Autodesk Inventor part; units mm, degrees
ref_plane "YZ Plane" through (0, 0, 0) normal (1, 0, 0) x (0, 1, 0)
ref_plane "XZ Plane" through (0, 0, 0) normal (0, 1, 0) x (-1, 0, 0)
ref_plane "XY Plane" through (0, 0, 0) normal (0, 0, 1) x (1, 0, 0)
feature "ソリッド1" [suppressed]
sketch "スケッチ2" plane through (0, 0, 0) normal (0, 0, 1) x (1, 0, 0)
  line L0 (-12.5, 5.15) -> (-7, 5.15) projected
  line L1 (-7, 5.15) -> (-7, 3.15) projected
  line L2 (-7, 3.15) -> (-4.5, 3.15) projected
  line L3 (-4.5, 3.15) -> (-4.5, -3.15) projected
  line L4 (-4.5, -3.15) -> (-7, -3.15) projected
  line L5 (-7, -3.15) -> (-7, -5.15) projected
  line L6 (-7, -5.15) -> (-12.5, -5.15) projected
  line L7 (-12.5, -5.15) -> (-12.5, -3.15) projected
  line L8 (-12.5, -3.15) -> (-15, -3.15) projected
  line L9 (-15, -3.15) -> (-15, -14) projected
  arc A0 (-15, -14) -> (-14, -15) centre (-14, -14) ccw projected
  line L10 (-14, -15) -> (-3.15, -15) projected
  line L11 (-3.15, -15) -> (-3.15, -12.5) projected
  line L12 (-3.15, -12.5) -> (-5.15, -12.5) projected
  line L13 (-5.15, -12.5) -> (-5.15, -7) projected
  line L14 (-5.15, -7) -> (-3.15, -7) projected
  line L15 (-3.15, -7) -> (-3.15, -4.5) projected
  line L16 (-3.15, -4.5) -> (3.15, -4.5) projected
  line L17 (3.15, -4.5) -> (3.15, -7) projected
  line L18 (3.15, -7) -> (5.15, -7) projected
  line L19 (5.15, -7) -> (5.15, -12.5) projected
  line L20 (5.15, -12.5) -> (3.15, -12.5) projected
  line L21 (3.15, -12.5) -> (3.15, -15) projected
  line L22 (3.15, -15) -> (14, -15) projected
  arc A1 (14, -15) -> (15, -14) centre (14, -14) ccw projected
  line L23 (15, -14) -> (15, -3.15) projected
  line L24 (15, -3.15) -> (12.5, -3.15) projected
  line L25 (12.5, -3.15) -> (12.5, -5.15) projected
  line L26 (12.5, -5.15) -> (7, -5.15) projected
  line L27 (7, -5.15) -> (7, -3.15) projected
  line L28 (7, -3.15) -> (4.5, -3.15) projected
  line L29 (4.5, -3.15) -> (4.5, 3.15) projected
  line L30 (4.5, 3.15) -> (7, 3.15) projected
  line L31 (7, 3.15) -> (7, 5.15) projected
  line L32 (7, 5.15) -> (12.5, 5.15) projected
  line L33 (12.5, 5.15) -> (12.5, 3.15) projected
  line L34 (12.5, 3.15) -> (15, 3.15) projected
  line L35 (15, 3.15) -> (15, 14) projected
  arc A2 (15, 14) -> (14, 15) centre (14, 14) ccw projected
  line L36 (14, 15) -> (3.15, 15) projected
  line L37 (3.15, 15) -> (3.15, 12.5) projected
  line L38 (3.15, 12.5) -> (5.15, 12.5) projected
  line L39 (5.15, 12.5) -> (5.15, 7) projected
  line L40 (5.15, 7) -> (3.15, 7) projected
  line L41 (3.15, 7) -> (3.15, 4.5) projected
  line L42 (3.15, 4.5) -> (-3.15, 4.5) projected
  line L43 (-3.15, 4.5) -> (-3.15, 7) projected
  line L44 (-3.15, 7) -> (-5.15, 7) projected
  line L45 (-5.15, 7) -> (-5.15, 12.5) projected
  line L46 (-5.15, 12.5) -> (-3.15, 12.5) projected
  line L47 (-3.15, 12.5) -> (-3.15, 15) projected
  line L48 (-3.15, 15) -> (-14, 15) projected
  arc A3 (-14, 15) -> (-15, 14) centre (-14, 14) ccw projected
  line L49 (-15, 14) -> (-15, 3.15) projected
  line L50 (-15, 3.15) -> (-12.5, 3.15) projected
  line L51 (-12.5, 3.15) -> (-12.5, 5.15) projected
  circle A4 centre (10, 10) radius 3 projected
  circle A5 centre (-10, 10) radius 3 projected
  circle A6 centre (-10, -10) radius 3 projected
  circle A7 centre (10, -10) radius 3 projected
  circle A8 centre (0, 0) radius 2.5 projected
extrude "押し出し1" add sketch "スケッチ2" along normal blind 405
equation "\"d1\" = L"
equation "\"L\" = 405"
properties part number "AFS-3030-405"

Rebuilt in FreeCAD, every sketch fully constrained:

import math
import FreeCAD as App
import Part
import Sketcher
Q = App.Units.Quantity

doc = App.newDocument("Part")
body = doc.addObject("PartDesign::Body", "Body")

sketch1 = body.newObject("Sketcher::SketchObject", "Sketch")
sketch1.AttachmentSupport = (doc.getObject("XY_Plane"), [""])
sketch1.MapMode = "FlatFace"
sketch1.addGeometry([
    Part.LineSegment(App.Vector(-12.5, 3.15, 0), App.Vector(-12.5, 5.15, 0)),
    Part.LineSegment(App.Vector(-12.5, 5.15, 0), App.Vector(-7, 5.15, 0)),
    Part.LineSegment(App.Vector(-7, 5.15, 0), App.Vector(-7, 3.15, 0)),
    Part.LineSegment(App.Vector(-7, 3.15, 0), App.Vector(-4.5, 3.15, 0)),
    Part.LineSegment(App.Vector(-4.5, 3.15, 0), App.Vector(-4.5, -3.15, 0)),
    Part.LineSegment(App.Vector(-4.5, -3.15, 0), App.Vector(-7, -3.15, 0)),
    Part.LineSegment(App.Vector(-7, -3.15, 0), App.Vector(-7, -5.15, 0)),
    Part.LineSegment(App.Vector(-7, -5.15, 0), App.Vector(-12.5, -5.15, 0)),
    Part.LineSegment(App.Vector(-12.5, -5.15, 0), App.Vector(-12.5, -3.15, 0)),
    Part.LineSegment(App.Vector(-12.5, -3.15, 0), App.Vector(-15, -3.15, 0)),
    Part.LineSegment(App.Vector(-15, -3.15, 0), App.Vector(-15, -14, 0)),
    Part.ArcOfCircle(Part.Circle(App.Vector(-14, -14, 0), App.Vector(0, 0, 1), 1), math.radians(180), math.radians(270)),
    Part.LineSegment(App.Vector(-14, -15, 0), App.Vector(-3.15, -15, 0)),
    Part.LineSegment(App.Vector(-3.15, -15, 0), App.Vector(-3.15, -12.5, 0)),
    Part.LineSegment(App.Vector(-3.15, -12.5, 0), App.Vector(-5.15, -12.5, 0)),
    Part.LineSegment(App.Vector(-5.15, -12.5, 0), App.Vector(-5.15, -7, 0)),
    Part.LineSegment(App.Vector(-5.15, -7, 0), App.Vector(-3.15, -7, 0)),
    Part.LineSegment(App.Vector(-3.15, -7, 0), App.Vector(-3.15, -4.5, 0)),
    Part.LineSegment(App.Vector(-3.15, -4.5, 0), App.Vector(3.15, -4.5, 0)),
    Part.LineSegment(App.Vector(3.15, -4.5, 0), App.Vector(3.15, -7, 0)),
    Part.LineSegment(App.Vector(3.15, -7, 0), App.Vector(5.15, -7, 0)),
    Part.LineSegment(App.Vector(5.15, -7, 0), App.Vector(5.15, -12.5, 0)),
    Part.LineSegment(App.Vector(5.15, -12.5, 0), App.Vector(3.15, -12.5, 0)),
    Part.LineSegment(App.Vector(3.15, -12.5, 0), App.Vector(3.15, -15, 0)),
    Part.LineSegment(App.Vector(3.15, -15, 0), App.Vector(14, -15, 0)),
    Part.ArcOfCircle(Part.Circle(App.Vector(14, -14, 0), App.Vector(0, 0, 1), 1), math.radians(-90), math.radians(0)),
    Part.LineSegment(App.Vector(15, -14, 0), App.Vector(15, -3.15, 0)),
    Part.LineSegment(App.Vector(15, -3.15, 0), App.Vector(12.5, -3.15, 0)),
    Part.LineSegment(App.Vector(12.5, -3.15, 0), App.Vector(12.5, -5.15, 0)),
    Part.LineSegment(App.Vector(12.5, -5.15, 0), App.Vector(7, -5.15, 0)),
    Part.LineSegment(App.Vector(7, -5.15, 0), App.Vector(7, -3.15, 0)),
    Part.LineSegment(App.Vector(7, -3.15, 0), App.Vector(4.5, -3.15, 0)),
    Part.LineSegment(App.Vector(4.5, -3.15, 0), App.Vector(4.5, 3.15, 0)),
    Part.LineSegment(App.Vector(4.5, 3.15, 0), App.Vector(7, 3.15, 0)),
    Part.LineSegment(App.Vector(7, 3.15, 0), App.Vector(7, 5.15, 0)),
    Part.LineSegment(App.Vector(7, 5.15, 0), App.Vector(12.5, 5.15, 0)),
    Part.LineSegment(App.Vector(12.5, 5.15, 0), App.Vector(12.5, 3.15, 0)),
    Part.LineSegment(App.Vector(12.5, 3.15, 0), App.Vector(15, 3.15, 0)),
    Part.LineSegment(App.Vector(15, 3.15, 0), App.Vector(15, 14, 0)),
    Part.ArcOfCircle(Part.Circle(App.Vector(14, 14, 0), App.Vector(0, 0, 1), 1), math.radians(0), math.radians(90)),
    Part.LineSegment(App.Vector(14, 15, 0), App.Vector(3.15, 15, 0)),
    Part.LineSegment(App.Vector(3.15, 15, 0), App.Vector(3.15, 12.5, 0)),
    Part.LineSegment(App.Vector(3.15, 12.5, 0), App.Vector(5.15, 12.5, 0)),
    Part.LineSegment(App.Vector(5.15, 12.5, 0), App.Vector(5.15, 7, 0)),
    Part.LineSegment(App.Vector(5.15, 7, 0), App.Vector(3.15, 7, 0)),
    Part.LineSegment(App.Vector(3.15, 7, 0), App.Vector(3.15, 4.5, 0)),
    Part.LineSegment(App.Vector(3.15, 4.5, 0), App.Vector(-3.15, 4.5, 0)),
    Part.LineSegment(App.Vector(-3.15, 4.5, 0), App.Vector(-3.15, 7, 0)),
    Part.LineSegment(App.Vector(-3.15, 7, 0), App.Vector(-5.15, 7, 0)),
    Part.LineSegment(App.Vector(-5.15, 7, 0), App.Vector(-5.15, 12.5, 0)),
    Part.LineSegment(App.Vector(-5.15, 12.5, 0), App.Vector(-3.15, 12.5, 0)),
    Part.LineSegment(App.Vector(-3.15, 12.5, 0), App.Vector(-3.15, 15, 0)),
    Part.LineSegment(App.Vector(-3.15, 15, 0), App.Vector(-14, 15, 0)),
    Part.ArcOfCircle(Part.Circle(App.Vector(-14, 14, 0), App.Vector(0, 0, 1), 1), math.radians(90), math.radians(180)),
    Part.LineSegment(App.Vector(-15, 14, 0), App.Vector(-15, 3.15, 0)),
    Part.LineSegment(App.Vector(-15, 3.15, 0), App.Vector(-12.5, 3.15, 0)),
    Part.Circle(App.Vector(-10, -10, 0), App.Vector(0, 0, 1), 3),
    Part.Circle(App.Vector(10, -10, 0), App.Vector(0, 0, 1), 3),
    Part.Circle(App.Vector(-10, 10, 0), App.Vector(0, 0, 1), 3),
    Part.Circle(App.Vector(0, 0, 0), App.Vector(0, 0, 1), 2.5),
    Part.Circle(App.Vector(10, 10, 0), App.Vector(0, 0, 1), 3),
], False)
sketch1.addConstraint([
    Sketcher.Constraint("Coincident", 0, 2, 1, 1),
    Sketcher.Constraint("Coincident", 1, 2, 2, 1),
    Sketcher.Constraint("Coincident", 2, 2, 3, 1),
    Sketcher.Constraint("Coincident", 3, 2, 4, 1),
    Sketcher.Constraint("Coincident", 4, 2, 5, 1),
    Sketcher.Constraint("Coincident", 5, 2, 6, 1),
    Sketcher.Constraint("Coincident", 6, 2, 7, 1),
    Sketcher.Constraint("Coincident", 7, 2, 8, 1),
    Sketcher.Constraint("Coincident", 8, 2, 9, 1),
    Sketcher.Constraint("Coincident", 9, 2, 10, 1),
    Sketcher.Constraint("Tangent", 10, 2, 11, 1),
    Sketcher.Constraint("Tangent", 11, 2, 12, 1),
    Sketcher.Constraint("Coincident", 12, 2, 13, 1),
    Sketcher.Constraint("Coincident", 13, 2, 14, 1),
    Sketcher.Constraint("Coincident", 14, 2, 15, 1),
    Sketcher.Constraint("Coincident", 15, 2, 16, 1),
    Sketcher.Constraint("Coincident", 16, 2, 17, 1),
    Sketcher.Constraint("Coincident", 17, 2, 18, 1),
    Sketcher.Constraint("Coincident", 18, 2, 19, 1),
    Sketcher.Constraint("Coincident", 19, 2, 20, 1),
    Sketcher.Constraint("Coincident", 20, 2, 21, 1),
    Sketcher.Constraint("Coincident", 21, 2, 22, 1),
    Sketcher.Constraint("Coincident", 22, 2, 23, 1),
    Sketcher.Constraint("Coincident", 23, 2, 24, 1),
    Sketcher.Constraint("Tangent", 24, 2, 25, 1),
    Sketcher.Constraint("Tangent", 25, 2, 26, 1),
    Sketcher.Constraint("Coincident", 26, 2, 27, 1),
    Sketcher.Constraint("Coincident", 27, 2, 28, 1),
    Sketcher.Constraint("Coincident", 28, 2, 29, 1),
    Sketcher.Constraint("Coincident", 29, 2, 30, 1),
    Sketcher.Constraint("Coincident", 30, 2, 31, 1),
    Sketcher.Constraint("Coincident", 31, 2, 32, 1),
    Sketcher.Constraint("Coincident", 32, 2, 33, 1),
    Sketcher.Constraint("Coincident", 33, 2, 34, 1),
    Sketcher.Constraint("Coincident", 34, 2, 35, 1),
    Sketcher.Constraint("Coincident", 35, 2, 36, 1),
    Sketcher.Constraint("Coincident", 36, 2, 37, 1),
    Sketcher.Constraint("Coincident", 37, 2, 38, 1),
    Sketcher.Constraint("Tangent", 38, 2, 39, 1),
    Sketcher.Constraint("Tangent", 39, 2, 40, 1),
    Sketcher.Constraint("Coincident", 40, 2, 41, 1),
    Sketcher.Constraint("Coincident", 41, 2, 42, 1),
    Sketcher.Constraint("Coincident", 42, 2, 43, 1),
    Sketcher.Constraint("Coincident", 43, 2, 44, 1),
    Sketcher.Constraint("Coincident", 44, 2, 45, 1),
    Sketcher.Constraint("Coincident", 45, 2, 46, 1),
    Sketcher.Constraint("Coincident", 46, 2, 47, 1),
    Sketcher.Constraint("Coincident", 47, 2, 48, 1),
    Sketcher.Constraint("Coincident", 48, 2, 49, 1),
    Sketcher.Constraint("Coincident", 49, 2, 50, 1),
    Sketcher.Constraint("Coincident", 50, 2, 51, 1),
    Sketcher.Constraint("Coincident", 51, 2, 52, 1),
    Sketcher.Constraint("Tangent", 52, 2, 53, 1),
    Sketcher.Constraint("Tangent", 53, 2, 54, 1),
    Sketcher.Constraint("Coincident", 54, 2, 55, 1),
    Sketcher.Constraint("Coincident", 55, 2, 0, 1),
    Sketcher.Constraint("Vertical", 0),
    Sketcher.Constraint("Horizontal", 1),
    Sketcher.Constraint("Vertical", 2),
    Sketcher.Constraint("Horizontal", 3),
    Sketcher.Constraint("Vertical", 4),
    Sketcher.Constraint("Horizontal", 5),
    Sketcher.Constraint("Vertical", 6),
    Sketcher.Constraint("Horizontal", 7),
    Sketcher.Constraint("Vertical", 8),
    Sketcher.Constraint("Horizontal", 9),
    Sketcher.Constraint("Vertical", 10),
    Sketcher.Constraint("Horizontal", 12),
    Sketcher.Constraint("Vertical", 13),
    Sketcher.Constraint("Horizontal", 14),
    Sketcher.Constraint("Vertical", 15),
    Sketcher.Constraint("Horizontal", 16),
    Sketcher.Constraint("Vertical", 17),
    Sketcher.Constraint("Horizontal", 18),
    Sketcher.Constraint("Vertical", 19),
    Sketcher.Constraint("Horizontal", 20),
    Sketcher.Constraint("Vertical", 21),
    Sketcher.Constraint("Horizontal", 22),
    Sketcher.Constraint("Vertical", 23),
    Sketcher.Constraint("Horizontal", 24),
    Sketcher.Constraint("Vertical", 26),
    Sketcher.Constraint("Horizontal", 27),
    Sketcher.Constraint("Vertical", 28),
    Sketcher.Constraint("Horizontal", 29),
    Sketcher.Constraint("Vertical", 30),
    Sketcher.Constraint("Horizontal", 31),
    Sketcher.Constraint("Vertical", 32),
    Sketcher.Constraint("Horizontal", 33),
    Sketcher.Constraint("Vertical", 34),
    Sketcher.Constraint("Horizontal", 35),
    Sketcher.Constraint("Vertical", 36),
    Sketcher.Constraint("Horizontal", 37),
    Sketcher.Constraint("Vertical", 38),
    Sketcher.Constraint("Horizontal", 40),
    Sketcher.Constraint("Vertical", 41),
    Sketcher.Constraint("Horizontal", 42),
    Sketcher.Constraint("Vertical", 43),
    Sketcher.Constraint("Horizontal", 44),
    Sketcher.Constraint("Vertical", 45),
    Sketcher.Constraint("Horizontal", 46),
    Sketcher.Constraint("Vertical", 47),
    Sketcher.Constraint("Horizontal", 48),
    Sketcher.Constraint("Vertical", 49),
    Sketcher.Constraint("Horizontal", 50),
    Sketcher.Constraint("Vertical", 51),
    Sketcher.Constraint("Horizontal", 52),
    Sketcher.Constraint("Vertical", 54),
    Sketcher.Constraint("Horizontal", 55),
    Sketcher.Constraint("Coincident", 59, 3, -1, 1),
    Sketcher.Constraint("Equal", 11, 25),
    Sketcher.Constraint("Equal", 25, 39),
    Sketcher.Constraint("Equal", 39, 53),
    Sketcher.Constraint("Equal", 56, 57),
    Sketcher.Constraint("Equal", 57, 58),
    Sketcher.Constraint("Equal", 58, 60),
    Sketcher.Constraint("Symmetric", 11, 3, 39, 3, -1, 1),
    Sketcher.Constraint("Symmetric", 25, 3, 53, 3, -1, 1),
    Sketcher.Constraint("Symmetric", 57, 3, 58, 3, -1, 1),
    Sketcher.Constraint("Symmetric", 56, 3, 60, 3, -1, 1),
    Sketcher.Constraint("Symmetric", 0, 2, 28, 2, -1, 1),
    Sketcher.Constraint("Symmetric", 2, 2, 30, 2, -1, 1),
    Sketcher.Constraint("Symmetric", 4, 2, 32, 2, -1, 1),
    Sketcher.Constraint("Symmetric", 6, 2, 34, 2, -1, 1),
    Sketcher.Constraint("Symmetric", 8, 2, 36, 2, -1, 1),
    Sketcher.Constraint("Symmetric", 13, 2, 41, 2, -1, 1),
    Sketcher.Constraint("Symmetric", 15, 2, 43, 2, -1, 1),
    Sketcher.Constraint("Symmetric", 17, 2, 45, 2, -1, 1),
    Sketcher.Constraint("Symmetric", 19, 2, 47, 2, -1, 1),
    Sketcher.Constraint("Symmetric", 21, 2, 49, 2, -1, 1),
    Sketcher.Constraint("Symmetric", 11, 3, 25, 3, -2),
    Sketcher.Constraint("Symmetric", 56, 3, 57, 3, -2),
    Sketcher.Constraint("Symmetric", 16, 2, 19, 2, -2),
    Sketcher.Constraint("Symmetric", 14, 2, 21, 2, -2),
    Sketcher.Constraint("Symmetric", 8, 2, 27, 2, -2),
    Sketcher.Constraint("Symmetric", 6, 2, 29, 2, -2),
    Sketcher.Constraint("Horizontal", 5, 2, 8, 2),
    Sketcher.Constraint("Horizontal", 27, 2, 30, 2),
    Sketcher.Constraint("Horizontal", 37, 2, 54, 2),
    Sketcher.Constraint("Vertical", 13, 2, 16, 2),
    Sketcher.Constraint("Vertical", 19, 2, 22, 2),
    Sketcher.Constraint("Vertical", 47, 2, 50, 2),
    Sketcher.Constraint("Equal", 5, 9),
    Sketcher.Constraint("Equal", 50, 0),
    Sketcher.Constraint("Equal", 46, 4),
    Sketcher.Constraint("Equal", 52, 10),
    Sketcher.Constraint("Equal", 55, 13),
    Sketcher.Constraint("Equal", 35, 15),
    Sketcher.Constraint("Equal", 13, 17),
    Sketcher.Constraint("Diameter", 56, Q("6 mm")),
    Sketcher.Constraint("Diameter", 59, Q("5 mm")),
    Sketcher.Constraint("Radius", 11, Q("1 mm")),
    Sketcher.Constraint("DistanceX", 14, 2, 14, 1, Q("2 mm")),
    Sketcher.Constraint("DistanceX", 1, 1, 1, 2, Q("5.5 mm")),
    Sketcher.Constraint("DistanceX", 3, 1, 3, 2, Q("2.5 mm")),
    Sketcher.Constraint("DistanceX", 18, 1, 18, 2, Q("6.3 mm")),
    Sketcher.Constraint("DistanceX", 11, 3, -1, 1, Q("14 mm")),
    Sketcher.Constraint("DistanceX", 56, 3, -1, 1, Q("10 mm")),
    Sketcher.Constraint("DistanceY", 56, 3, -1, 1, Q("10 mm")),
])
pad1 = body.newObject("PartDesign::Pad", "Pad")
pad1.Profile = sketch1
pad1.Length = 405

doc.recompute()
